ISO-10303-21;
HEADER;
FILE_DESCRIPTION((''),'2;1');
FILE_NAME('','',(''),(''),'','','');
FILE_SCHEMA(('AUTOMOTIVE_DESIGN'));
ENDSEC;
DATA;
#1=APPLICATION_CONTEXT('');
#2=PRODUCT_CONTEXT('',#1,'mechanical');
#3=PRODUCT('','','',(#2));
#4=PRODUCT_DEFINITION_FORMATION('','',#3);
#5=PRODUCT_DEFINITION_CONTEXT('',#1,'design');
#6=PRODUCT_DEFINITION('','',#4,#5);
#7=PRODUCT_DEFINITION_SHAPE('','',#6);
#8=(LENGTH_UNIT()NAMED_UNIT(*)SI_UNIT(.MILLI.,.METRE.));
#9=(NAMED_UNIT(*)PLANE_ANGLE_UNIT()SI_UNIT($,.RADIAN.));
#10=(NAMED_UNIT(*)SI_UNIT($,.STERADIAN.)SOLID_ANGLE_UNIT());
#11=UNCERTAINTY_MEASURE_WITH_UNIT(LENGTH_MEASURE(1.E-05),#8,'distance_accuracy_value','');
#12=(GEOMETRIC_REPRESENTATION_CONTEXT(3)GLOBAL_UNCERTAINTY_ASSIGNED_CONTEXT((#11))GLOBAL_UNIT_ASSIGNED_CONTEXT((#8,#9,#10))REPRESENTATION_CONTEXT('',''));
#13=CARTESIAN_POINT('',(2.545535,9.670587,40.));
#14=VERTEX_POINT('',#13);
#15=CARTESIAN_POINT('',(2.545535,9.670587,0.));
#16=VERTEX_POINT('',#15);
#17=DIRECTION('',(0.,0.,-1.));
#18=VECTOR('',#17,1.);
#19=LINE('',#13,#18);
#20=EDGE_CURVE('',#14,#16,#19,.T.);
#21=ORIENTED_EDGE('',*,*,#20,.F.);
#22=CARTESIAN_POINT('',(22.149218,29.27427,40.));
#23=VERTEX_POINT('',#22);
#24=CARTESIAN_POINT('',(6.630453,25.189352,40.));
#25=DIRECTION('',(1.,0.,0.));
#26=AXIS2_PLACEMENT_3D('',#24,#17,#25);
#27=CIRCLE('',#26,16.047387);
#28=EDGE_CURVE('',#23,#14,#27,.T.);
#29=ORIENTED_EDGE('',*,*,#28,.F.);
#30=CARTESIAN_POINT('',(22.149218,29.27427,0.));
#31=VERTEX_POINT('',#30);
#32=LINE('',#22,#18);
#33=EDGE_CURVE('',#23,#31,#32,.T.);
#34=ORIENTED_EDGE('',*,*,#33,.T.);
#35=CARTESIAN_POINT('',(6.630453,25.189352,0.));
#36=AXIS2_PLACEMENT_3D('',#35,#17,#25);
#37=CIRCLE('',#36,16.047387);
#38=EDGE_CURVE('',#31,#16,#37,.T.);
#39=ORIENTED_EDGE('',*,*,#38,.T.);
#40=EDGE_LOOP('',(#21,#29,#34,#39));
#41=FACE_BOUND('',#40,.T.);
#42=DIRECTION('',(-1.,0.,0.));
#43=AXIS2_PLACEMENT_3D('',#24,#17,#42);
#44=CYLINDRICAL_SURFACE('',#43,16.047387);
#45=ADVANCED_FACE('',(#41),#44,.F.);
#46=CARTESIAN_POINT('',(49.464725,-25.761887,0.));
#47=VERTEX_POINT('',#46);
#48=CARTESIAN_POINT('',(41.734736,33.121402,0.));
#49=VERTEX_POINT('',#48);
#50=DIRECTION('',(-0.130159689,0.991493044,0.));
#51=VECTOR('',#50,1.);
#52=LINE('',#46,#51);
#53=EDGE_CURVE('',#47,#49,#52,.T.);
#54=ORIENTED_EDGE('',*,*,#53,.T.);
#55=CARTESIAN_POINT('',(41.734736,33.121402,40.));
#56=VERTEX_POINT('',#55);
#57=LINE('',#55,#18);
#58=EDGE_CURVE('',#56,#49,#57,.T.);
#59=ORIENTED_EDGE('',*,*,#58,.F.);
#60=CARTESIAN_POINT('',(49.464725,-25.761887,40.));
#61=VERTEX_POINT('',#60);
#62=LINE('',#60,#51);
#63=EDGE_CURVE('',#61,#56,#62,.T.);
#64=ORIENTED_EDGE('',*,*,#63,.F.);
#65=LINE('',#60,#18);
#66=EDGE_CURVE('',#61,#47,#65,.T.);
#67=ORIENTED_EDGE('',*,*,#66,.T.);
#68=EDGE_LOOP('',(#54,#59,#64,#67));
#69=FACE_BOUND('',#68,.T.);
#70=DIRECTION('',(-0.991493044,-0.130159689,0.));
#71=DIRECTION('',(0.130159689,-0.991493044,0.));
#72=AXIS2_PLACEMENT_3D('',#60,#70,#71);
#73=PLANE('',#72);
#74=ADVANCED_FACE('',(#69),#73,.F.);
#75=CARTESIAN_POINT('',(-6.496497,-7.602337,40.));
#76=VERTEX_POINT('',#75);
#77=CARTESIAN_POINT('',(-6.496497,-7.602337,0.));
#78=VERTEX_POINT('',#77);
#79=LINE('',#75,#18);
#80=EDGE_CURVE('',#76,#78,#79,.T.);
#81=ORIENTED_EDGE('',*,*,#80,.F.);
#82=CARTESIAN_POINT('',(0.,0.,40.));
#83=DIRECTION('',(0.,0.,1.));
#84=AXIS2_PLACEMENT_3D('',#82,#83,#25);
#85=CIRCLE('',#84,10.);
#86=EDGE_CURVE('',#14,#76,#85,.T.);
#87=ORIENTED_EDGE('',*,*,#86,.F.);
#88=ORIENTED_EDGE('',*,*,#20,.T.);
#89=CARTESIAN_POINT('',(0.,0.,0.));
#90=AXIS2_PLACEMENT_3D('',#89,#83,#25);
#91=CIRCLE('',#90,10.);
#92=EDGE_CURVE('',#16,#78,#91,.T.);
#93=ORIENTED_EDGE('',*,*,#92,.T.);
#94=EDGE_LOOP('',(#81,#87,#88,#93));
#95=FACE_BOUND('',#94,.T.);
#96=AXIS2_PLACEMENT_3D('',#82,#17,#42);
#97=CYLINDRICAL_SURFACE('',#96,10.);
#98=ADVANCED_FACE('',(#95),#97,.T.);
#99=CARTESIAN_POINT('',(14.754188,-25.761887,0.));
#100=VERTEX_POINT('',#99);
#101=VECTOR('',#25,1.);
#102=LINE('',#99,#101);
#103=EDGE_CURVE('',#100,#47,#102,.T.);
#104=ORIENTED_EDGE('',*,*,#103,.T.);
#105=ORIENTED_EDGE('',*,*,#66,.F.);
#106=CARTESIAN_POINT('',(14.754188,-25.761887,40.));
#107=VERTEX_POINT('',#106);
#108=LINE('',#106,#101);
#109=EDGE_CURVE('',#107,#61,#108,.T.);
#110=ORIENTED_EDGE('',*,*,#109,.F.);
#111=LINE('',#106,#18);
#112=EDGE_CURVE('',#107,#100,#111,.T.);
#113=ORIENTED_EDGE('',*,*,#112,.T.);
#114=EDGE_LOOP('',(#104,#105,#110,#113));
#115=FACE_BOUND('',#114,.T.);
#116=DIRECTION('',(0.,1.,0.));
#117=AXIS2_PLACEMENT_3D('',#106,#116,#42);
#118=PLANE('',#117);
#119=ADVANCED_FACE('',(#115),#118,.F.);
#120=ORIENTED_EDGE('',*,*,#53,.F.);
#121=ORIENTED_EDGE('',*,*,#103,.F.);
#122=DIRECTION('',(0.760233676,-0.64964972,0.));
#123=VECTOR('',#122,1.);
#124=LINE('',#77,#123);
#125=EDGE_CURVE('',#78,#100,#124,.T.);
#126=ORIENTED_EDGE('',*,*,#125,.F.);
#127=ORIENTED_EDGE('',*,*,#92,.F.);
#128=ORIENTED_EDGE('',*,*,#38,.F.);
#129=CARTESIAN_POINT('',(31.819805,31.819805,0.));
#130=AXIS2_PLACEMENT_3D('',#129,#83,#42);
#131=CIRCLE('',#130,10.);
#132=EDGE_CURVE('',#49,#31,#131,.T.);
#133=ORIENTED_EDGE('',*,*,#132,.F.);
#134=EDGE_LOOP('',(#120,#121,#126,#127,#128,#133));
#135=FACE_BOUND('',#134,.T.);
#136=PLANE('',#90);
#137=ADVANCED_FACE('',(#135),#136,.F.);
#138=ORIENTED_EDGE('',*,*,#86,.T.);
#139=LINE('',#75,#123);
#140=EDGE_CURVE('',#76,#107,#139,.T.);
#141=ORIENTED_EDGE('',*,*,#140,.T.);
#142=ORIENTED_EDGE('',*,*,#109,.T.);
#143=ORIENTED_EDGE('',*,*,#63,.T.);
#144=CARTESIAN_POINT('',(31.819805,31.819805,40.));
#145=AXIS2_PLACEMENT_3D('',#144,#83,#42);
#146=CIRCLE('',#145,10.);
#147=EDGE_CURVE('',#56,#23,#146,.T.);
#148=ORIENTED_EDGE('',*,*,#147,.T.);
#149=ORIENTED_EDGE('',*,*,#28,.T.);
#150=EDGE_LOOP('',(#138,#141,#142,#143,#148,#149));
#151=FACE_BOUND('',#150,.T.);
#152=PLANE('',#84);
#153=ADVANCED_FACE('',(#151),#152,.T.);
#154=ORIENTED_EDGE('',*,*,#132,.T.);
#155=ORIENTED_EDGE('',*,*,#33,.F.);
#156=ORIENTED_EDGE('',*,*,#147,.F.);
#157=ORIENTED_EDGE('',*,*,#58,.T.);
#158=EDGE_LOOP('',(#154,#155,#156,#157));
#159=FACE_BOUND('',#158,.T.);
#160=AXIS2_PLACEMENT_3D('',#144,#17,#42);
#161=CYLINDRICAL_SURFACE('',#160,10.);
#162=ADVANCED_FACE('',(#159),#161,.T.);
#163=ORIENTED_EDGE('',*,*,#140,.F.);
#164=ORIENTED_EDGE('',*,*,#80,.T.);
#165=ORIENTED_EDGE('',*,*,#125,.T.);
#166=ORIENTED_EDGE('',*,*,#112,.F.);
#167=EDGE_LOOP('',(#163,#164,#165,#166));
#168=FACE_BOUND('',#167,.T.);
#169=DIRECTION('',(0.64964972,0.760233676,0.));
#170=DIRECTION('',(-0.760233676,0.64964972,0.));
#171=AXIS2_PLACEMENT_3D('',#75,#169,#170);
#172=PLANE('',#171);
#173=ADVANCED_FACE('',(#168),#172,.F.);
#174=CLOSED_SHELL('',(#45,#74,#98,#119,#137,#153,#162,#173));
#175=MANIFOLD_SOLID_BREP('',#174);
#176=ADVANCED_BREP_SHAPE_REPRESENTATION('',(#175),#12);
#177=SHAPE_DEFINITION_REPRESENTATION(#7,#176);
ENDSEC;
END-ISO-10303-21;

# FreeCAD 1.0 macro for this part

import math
import FreeCAD as App
import Part
import Sketcher
from FreeCAD import Vector
Q = App.Units.Quantity

doc = App.newDocument("Part")
params = doc.addObject("Spreadsheet::Sheet", "Params")
for row, (alias, value) in enumerate([
    ("sketch1_radius", "10 mm"),
    ("sketch1_radius2", "10 mm"),
    ("pad1_length", "40 mm"),
], start=1):
    params.set(f"A{row}", alias)
    params.set(f"B{row}", "=" + value)
    params.setAlias(f"B{row}", alias)

body = doc.addObject("PartDesign::Body", "Body")

sketch1 = body.newObject("Sketcher::SketchObject", "Sketch")
sketch1.AttachmentSupport = (doc.getObject("XY_Plane"), [""])
sketch1.MapMode = "FlatFace"
sketch1.addGeometry([
    Part.LineSegment(Vector(14.754188, -25.761887, 0), Vector(49.464725, -25.761887, 0)),
    Part.LineSegment(Vector(49.464725, -25.761887, 0), Vector(41.734736, 33.121402, 0)),
    Part.ArcOfCircle(Part.Circle(Vector(31.819805, 31.819805, 0), Vector(0, 0, 1), 10), math.radians(7.47882), math.radians(194.747128)),
    Part.ArcOfCircle(Part.Circle(Vector(6.630453, 25.189352, 0), Vector(0, 0, 1), 16.047387), math.radians(-104.747128), math.radians(14.747128)),
    Part.ArcOfCircle(Part.Circle(Vector(0, 0, 0), Vector(0, 0, 1), 10), math.radians(75.252872), math.radians(229.484803)),
    Part.LineSegment(Vector(-6.496497, -7.602337, 0), Vector(14.754188, -25.761887, 0)),
], False)
sketch1.addConstraint([
    Sketcher.Constraint("Coincident", 0, 2, 1, 1),
    Sketcher.Constraint("Coincident", 1, 2, 2, 1),
    Sketcher.Constraint("Coincident", 2, 2, 3, 2),
    Sketcher.Constraint("Coincident", 3, 1, 4, 1),
    Sketcher.Constraint("Coincident", 4, 2, 5, 1),
    Sketcher.Constraint("Coincident", 5, 2, 0, 1),
    Sketcher.Constraint("Horizontal", 0),
    Sketcher.Constraint("Coincident", 4, 3, -1, 1),
    Sketcher.Constraint("Radius", 2, Q("10 mm")),
    Sketcher.Constraint("Radius", 4, Q("10 mm")),
    Sketcher.Constraint("Radius", 3, Q("16.047387 mm")),
    Sketcher.Constraint("DistanceX", 3, 1, 1, 2, Q("39.189201 mm")),
    Sketcher.Constraint("DistanceX", 0, 1, 0, 2, Q("34.710537 mm")),
    Sketcher.Constraint("DistanceX", -1, 1, 2, 2, Q("22.149218 mm")),
    Sketcher.Constraint("DistanceY", -1, 1, 2, 2, Q("29.27427 mm")),
    Sketcher.Constraint("DistanceX", 2, 3, 0, 2, Q("17.64492 mm")),
    Sketcher.Constraint("DistanceY", 0, 2, 3, 3, Q("50.951239 mm")),
    Sketcher.Constraint("DistanceX", 2, 3, 1, 2, Q("9.91493 mm")),
    Sketcher.Constraint("DistanceY", 3, 3, 1, 2, Q("7.93205 mm")),
    Sketcher.Constraint("DistanceX", 4, 2, 3, 1, Q("9.042032 mm")),
])
sketch1.setExpression("Constraints[8]", "Params.sketch1_radius")
sketch1.setExpression("Constraints[9]", "Params.sketch1_radius2")
pad1 = body.newObject("PartDesign::Pad", "Pad")
pad1.Profile = sketch1
pad1.setExpression("Length", "Params.pad1_length")

doc.recompute()
